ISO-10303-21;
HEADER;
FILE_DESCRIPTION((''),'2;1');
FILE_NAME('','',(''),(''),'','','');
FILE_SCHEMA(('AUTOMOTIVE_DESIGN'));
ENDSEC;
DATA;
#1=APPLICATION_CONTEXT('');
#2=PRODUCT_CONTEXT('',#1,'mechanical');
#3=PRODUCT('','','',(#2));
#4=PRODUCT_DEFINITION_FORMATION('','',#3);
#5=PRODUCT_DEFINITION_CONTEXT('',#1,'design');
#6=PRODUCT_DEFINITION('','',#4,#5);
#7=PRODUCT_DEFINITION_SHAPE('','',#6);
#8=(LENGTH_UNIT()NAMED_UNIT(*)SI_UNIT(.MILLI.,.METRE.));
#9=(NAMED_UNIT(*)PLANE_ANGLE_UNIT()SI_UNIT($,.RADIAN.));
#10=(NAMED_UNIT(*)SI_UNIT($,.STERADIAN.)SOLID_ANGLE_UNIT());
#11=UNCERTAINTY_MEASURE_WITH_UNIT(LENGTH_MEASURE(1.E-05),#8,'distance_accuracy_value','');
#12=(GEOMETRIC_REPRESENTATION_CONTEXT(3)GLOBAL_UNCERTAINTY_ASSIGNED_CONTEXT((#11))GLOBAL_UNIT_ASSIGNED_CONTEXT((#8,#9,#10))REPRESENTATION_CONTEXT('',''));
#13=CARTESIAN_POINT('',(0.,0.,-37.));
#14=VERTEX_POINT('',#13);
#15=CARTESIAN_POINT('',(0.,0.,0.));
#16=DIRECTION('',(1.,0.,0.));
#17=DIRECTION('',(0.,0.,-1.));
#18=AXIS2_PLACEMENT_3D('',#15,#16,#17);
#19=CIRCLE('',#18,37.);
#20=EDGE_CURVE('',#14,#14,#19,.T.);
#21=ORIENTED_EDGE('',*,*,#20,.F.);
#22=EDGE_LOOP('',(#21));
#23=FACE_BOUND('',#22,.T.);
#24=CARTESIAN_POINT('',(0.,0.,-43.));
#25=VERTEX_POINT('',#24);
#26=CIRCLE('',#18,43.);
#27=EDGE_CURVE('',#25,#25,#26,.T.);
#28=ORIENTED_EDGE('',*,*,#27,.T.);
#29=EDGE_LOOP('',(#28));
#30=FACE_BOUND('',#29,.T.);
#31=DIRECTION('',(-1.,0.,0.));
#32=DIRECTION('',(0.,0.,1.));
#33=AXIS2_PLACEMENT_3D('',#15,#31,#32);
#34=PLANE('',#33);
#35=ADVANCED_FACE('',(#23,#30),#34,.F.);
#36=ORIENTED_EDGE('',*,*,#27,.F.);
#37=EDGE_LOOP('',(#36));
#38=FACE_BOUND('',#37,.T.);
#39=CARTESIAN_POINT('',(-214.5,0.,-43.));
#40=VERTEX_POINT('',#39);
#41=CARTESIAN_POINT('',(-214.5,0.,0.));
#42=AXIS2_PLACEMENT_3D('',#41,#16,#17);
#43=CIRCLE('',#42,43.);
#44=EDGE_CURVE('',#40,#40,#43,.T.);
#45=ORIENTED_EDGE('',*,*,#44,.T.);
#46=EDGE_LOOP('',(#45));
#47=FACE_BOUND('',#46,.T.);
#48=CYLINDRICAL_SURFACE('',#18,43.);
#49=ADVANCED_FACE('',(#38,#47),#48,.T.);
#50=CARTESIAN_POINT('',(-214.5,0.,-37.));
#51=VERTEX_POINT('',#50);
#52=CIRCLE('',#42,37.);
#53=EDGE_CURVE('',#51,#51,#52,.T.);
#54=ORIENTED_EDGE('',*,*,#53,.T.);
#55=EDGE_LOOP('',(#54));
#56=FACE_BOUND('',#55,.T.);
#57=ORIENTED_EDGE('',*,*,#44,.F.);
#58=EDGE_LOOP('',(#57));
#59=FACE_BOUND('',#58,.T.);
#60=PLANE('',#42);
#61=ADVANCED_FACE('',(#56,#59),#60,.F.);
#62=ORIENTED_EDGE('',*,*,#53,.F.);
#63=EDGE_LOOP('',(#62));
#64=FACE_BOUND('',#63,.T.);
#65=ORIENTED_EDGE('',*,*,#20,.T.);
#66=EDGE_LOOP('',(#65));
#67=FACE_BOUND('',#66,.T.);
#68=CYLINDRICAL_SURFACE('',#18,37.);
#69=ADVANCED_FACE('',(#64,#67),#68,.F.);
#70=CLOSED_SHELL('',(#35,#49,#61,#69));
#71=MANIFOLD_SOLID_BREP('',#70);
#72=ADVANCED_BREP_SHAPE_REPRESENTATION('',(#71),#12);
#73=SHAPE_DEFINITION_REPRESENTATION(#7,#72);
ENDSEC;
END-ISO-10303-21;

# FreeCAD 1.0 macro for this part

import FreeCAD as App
import Part
import Sketcher

V = App.Vector
Q = App.Units.Quantity


def add_polygon(sketch, points):
    """Adds a closed chain of lines whose ends are joined by coincident constraints."""
    first, n = sketch.GeometryCount, len(points)
    for a, b in zip(points, points[1:] + points[:1]):
        sketch.addGeometry(Part.LineSegment(App.Vector(*a, 0), App.Vector(*b, 0)), False)
    for i in range(n):
        sketch.addConstraint(Sketcher.Constraint("Coincident", first + i, 2, first + (i + 1) % n, 1))

doc = App.newDocument("Part")
body = doc.addObject("PartDesign::Body", "Body")

# Sketch on XZ plane
sketch1 = body.newObject("Sketcher::SketchObject", "Sketch")
sketch1.AttachmentSupport = (doc.getObject("XZ_Plane"), [""])
sketch1.MapMode = "FlatFace"
add_polygon(sketch1, [(-214, -43), (-214, -37), (0, -37), (0, -43)])  # lines 0-3
sketch1.addConstraint([
    Sketcher.Constraint("Vertical", 0),
    Sketcher.Constraint("Horizontal", 1),
    Sketcher.Constraint("Vertical", 2),
    Sketcher.Constraint("Horizontal", 3),
    Sketcher.Constraint("PointOnObject", 1, 2, -2),
    Sketcher.Constraint("DistanceY", 0, 1, 0, 2, Q("6 mm")),
    Sketcher.Constraint("DistanceX", 1, 1, 1, 2, Q("214.5 mm")),
    Sketcher.Constraint("DistanceY", 0, 2, -1, 1, Q("37 mm")),
])
revolution = body.newObject("PartDesign::Revolution", "Revolution")
revolution.Profile = sketch1
revolution.ReferenceAxis = (sketch1, ["H_Axis"])
revolution.Angle = 360

doc.recompute()
